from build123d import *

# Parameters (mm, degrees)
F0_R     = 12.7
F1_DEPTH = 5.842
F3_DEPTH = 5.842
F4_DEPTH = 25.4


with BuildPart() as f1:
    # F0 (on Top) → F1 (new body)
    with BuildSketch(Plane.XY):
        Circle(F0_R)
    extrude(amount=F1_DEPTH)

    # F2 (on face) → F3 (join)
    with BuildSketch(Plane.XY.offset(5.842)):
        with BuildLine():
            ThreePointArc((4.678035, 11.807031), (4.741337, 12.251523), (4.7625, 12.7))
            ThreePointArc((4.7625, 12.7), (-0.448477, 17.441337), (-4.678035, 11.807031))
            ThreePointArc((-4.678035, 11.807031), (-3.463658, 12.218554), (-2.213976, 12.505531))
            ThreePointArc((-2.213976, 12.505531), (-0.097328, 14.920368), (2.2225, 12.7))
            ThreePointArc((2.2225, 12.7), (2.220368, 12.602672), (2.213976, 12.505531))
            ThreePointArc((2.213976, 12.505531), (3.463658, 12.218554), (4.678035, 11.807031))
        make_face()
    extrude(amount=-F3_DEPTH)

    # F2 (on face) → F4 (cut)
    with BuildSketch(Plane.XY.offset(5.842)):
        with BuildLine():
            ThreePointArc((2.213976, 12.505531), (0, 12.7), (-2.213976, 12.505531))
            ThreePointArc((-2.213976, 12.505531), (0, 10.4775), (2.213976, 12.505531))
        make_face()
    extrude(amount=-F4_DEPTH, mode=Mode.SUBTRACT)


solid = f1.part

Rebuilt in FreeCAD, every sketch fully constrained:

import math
import FreeCAD as App
import Part
import Sketcher

V = App.Vector
Q = App.Units.Quantity

doc = App.newDocument("Part")
body = doc.addObject("PartDesign::Body", "Body")

# Sketch on XY plane
sketch1 = body.newObject("Sketcher::SketchObject", "Sketch")
sketch1.AttachmentSupport = (doc.getObject("XY_Plane"), [""])
sketch1.MapMode = "FlatFace"
sketch1.addGeometry(Part.Circle(V(0, 0, 0), V(0, 0, 1), 12.7), False)
sketch1.addConstraint(Sketcher.Constraint("Coincident", 0, 3, -1, 1))
sketch1.addConstraint(Sketcher.Constraint("Diameter", 0, Q("1 in")))
pad1 = body.newObject("PartDesign::Pad", "Pad")
pad1.Profile = sketch1
pad1.Length = Q("0.23 in")

# Sketch on XY plane
sketch2 = body.newObject("Sketcher::SketchObject", "Sketch001")
sketch2.AttachmentSupport = (doc.getObject("XY_Plane"), [""])
sketch2.MapMode = "FlatFace"
sketch2.AttachmentOffset = App.Placement(V(0, 0, 0.23 * 25.4), App.Rotation())
sketch2.addGeometry(Part.ArcOfCircle(Part.Circle(V(0.000059, 12.699995, 0), V(0, 0, 1), 4.762441), math.radians(-10.807001), math.radians(0.000059)), False)
sketch2.addGeometry(Part.ArcOfCircle(Part.Circle(V(0, 12.7, 0), V(0, 0, 1), 4.7625), math.radians(-0.000003), math.radians(190.806929)), False)
sketch2.addGeometry(Part.ArcOfCircle(Part.Circle(V(0.000012, -0.000039, 0), V(0, 0, 1), 12.700041), math.radians(100.039623), math.radians(111.613829)), False)
sketch2.addGeometry(Part.ArcOfCircle(Part.Circle(V(0, 12.7, 0), V(0, 0, 1), 2.2225), math.radians(0.000002), math.radians(185.019804)), False)
sketch2.addGeometry(Part.ArcOfCircle(Part.Circle(V(-0.000068, 12.699999, 0), V(0, 0, 1), 2.222568), math.radians(-5.019618), math.radians(0.000034)), False)
sketch2.addGeometry(Part.ArcOfCircle(Part.Circle(V(-0.000012, -0.000039, 0), V(0, 0, 1), 12.700041), math.radians(68.386171), math.radians(79.960377)), False)
sketch2.addConstraint(Sketcher.Constraint("Tangent", 0, 2, 1, 1))
sketch2.addConstraint(Sketcher.Constraint("Coincident", 1, 2, 2, 2))
sketch2.addConstraint(Sketcher.Constraint("Coincident", 2, 1, 3, 2))
sketch2.addConstraint(Sketcher.Constraint("Tangent", 3, 1, 4, 2))
sketch2.addConstraint(Sketcher.Constraint("Coincident", 4, 1, 5, 2))
sketch2.addConstraint(Sketcher.Constraint("Coincident", 5, 1, 0, 1))
sketch2.addConstraint(Sketcher.Constraint("Coincident", 3, 3, 1, 3))
sketch2.addConstraint(Sketcher.Constraint("Equal", 2, 5))
sketch2.addConstraint(Sketcher.Constraint("Symmetric", 2, 3, 5, 3, -2))
sketch2.addConstraint(Sketcher.Constraint("PointOnObject", 1, 3, -2))
sketch2.addConstraint(Sketcher.Constraint("Horizontal", 4, 3, 0, 2))
sketch2.addConstraint(Sketcher.Constraint("Horizontal", 0, 2, 3, 1))
sketch2.addConstraint(Sketcher.Constraint("Radius", 1, Q("0.1875 in")))
sketch2.addConstraint(Sketcher.Constraint("DistanceY", -1, 1, 0, 3, Q("0.4999998 in")))
sketch2.addConstraint(Sketcher.Constraint("Radius", 3, Q("0.0875 in")))
sketch2.addConstraint(Sketcher.Constraint("Radius", 0, 4.762441))
sketch2.addConstraint(Sketcher.Constraint("Radius", 2, 12.700041))
sketch2.addConstraint(Sketcher.Constraint("Radius", 4, 2.222568))
sketch2.addConstraint(Sketcher.Constraint("DistanceY", 1, 2, 2, 1, Q("0.0275 in")))
sketch2.addConstraint(Sketcher.Constraint("DistanceY", -1, 1, 1, 2, 11.807031))
pad2 = body.newObject("PartDesign::Pad", "Pad001")
pad2.Profile = sketch2
pad2.Length = Q("0.23 in")
pad2.Reversed = True

# Sketch on XY plane
sketch3 = body.newObject("Sketcher::SketchObject", "Sketch002")
sketch3.AttachmentSupport = (doc.getObject("XY_Plane"), [""])
sketch3.MapMode = "FlatFace"
sketch3.AttachmentOffset = App.Placement(V(0, 0, 0.23 * 25.4), App.Rotation())
sketch3.addGeometry(Part.ArcOfCircle(Part.Circle(V(0, 0.000012, 0), V(0, 0, 1), 12.699988), math.radians(79.960388), math.radians(100.039612)), False)
sketch3.addGeometry(Part.ArcOfCircle(Part.Circle(V(0, 12.7, 0), V(0, 0, 1), 2.2225), math.radians(-174.980184), math.radians(-5.019816)), False)
sketch3.addConstraint(Sketcher.Constraint("Coincident", 0, 1, 1, 2))
sketch3.addConstraint(Sketcher.Constraint("Coincident", 1, 1, 0, 2))
sketch3.addConstraint(Sketcher.Constraint("Symmetric", 0, 1, 1, 1, -2))
sketch3.addConstraint(Sketcher.Constraint("DistanceY", -1, 1, 1, 3, Q("0.5 in")))
sketch3.addConstraint(Sketcher.Constraint("Radius", 1, Q("0.0875 in")))
sketch3.addConstraint(Sketcher.Constraint("Radius", 0, 12.699988))
sketch3.addConstraint(Sketcher.Constraint("DistanceY", -1, 1, 0, 1, 12.505531))
pocket1 = body.newObject("PartDesign::Pocket", "Pocket")
pocket1.Profile = sketch3
pocket1.Length = Q("1 in")

doc.recompute()
